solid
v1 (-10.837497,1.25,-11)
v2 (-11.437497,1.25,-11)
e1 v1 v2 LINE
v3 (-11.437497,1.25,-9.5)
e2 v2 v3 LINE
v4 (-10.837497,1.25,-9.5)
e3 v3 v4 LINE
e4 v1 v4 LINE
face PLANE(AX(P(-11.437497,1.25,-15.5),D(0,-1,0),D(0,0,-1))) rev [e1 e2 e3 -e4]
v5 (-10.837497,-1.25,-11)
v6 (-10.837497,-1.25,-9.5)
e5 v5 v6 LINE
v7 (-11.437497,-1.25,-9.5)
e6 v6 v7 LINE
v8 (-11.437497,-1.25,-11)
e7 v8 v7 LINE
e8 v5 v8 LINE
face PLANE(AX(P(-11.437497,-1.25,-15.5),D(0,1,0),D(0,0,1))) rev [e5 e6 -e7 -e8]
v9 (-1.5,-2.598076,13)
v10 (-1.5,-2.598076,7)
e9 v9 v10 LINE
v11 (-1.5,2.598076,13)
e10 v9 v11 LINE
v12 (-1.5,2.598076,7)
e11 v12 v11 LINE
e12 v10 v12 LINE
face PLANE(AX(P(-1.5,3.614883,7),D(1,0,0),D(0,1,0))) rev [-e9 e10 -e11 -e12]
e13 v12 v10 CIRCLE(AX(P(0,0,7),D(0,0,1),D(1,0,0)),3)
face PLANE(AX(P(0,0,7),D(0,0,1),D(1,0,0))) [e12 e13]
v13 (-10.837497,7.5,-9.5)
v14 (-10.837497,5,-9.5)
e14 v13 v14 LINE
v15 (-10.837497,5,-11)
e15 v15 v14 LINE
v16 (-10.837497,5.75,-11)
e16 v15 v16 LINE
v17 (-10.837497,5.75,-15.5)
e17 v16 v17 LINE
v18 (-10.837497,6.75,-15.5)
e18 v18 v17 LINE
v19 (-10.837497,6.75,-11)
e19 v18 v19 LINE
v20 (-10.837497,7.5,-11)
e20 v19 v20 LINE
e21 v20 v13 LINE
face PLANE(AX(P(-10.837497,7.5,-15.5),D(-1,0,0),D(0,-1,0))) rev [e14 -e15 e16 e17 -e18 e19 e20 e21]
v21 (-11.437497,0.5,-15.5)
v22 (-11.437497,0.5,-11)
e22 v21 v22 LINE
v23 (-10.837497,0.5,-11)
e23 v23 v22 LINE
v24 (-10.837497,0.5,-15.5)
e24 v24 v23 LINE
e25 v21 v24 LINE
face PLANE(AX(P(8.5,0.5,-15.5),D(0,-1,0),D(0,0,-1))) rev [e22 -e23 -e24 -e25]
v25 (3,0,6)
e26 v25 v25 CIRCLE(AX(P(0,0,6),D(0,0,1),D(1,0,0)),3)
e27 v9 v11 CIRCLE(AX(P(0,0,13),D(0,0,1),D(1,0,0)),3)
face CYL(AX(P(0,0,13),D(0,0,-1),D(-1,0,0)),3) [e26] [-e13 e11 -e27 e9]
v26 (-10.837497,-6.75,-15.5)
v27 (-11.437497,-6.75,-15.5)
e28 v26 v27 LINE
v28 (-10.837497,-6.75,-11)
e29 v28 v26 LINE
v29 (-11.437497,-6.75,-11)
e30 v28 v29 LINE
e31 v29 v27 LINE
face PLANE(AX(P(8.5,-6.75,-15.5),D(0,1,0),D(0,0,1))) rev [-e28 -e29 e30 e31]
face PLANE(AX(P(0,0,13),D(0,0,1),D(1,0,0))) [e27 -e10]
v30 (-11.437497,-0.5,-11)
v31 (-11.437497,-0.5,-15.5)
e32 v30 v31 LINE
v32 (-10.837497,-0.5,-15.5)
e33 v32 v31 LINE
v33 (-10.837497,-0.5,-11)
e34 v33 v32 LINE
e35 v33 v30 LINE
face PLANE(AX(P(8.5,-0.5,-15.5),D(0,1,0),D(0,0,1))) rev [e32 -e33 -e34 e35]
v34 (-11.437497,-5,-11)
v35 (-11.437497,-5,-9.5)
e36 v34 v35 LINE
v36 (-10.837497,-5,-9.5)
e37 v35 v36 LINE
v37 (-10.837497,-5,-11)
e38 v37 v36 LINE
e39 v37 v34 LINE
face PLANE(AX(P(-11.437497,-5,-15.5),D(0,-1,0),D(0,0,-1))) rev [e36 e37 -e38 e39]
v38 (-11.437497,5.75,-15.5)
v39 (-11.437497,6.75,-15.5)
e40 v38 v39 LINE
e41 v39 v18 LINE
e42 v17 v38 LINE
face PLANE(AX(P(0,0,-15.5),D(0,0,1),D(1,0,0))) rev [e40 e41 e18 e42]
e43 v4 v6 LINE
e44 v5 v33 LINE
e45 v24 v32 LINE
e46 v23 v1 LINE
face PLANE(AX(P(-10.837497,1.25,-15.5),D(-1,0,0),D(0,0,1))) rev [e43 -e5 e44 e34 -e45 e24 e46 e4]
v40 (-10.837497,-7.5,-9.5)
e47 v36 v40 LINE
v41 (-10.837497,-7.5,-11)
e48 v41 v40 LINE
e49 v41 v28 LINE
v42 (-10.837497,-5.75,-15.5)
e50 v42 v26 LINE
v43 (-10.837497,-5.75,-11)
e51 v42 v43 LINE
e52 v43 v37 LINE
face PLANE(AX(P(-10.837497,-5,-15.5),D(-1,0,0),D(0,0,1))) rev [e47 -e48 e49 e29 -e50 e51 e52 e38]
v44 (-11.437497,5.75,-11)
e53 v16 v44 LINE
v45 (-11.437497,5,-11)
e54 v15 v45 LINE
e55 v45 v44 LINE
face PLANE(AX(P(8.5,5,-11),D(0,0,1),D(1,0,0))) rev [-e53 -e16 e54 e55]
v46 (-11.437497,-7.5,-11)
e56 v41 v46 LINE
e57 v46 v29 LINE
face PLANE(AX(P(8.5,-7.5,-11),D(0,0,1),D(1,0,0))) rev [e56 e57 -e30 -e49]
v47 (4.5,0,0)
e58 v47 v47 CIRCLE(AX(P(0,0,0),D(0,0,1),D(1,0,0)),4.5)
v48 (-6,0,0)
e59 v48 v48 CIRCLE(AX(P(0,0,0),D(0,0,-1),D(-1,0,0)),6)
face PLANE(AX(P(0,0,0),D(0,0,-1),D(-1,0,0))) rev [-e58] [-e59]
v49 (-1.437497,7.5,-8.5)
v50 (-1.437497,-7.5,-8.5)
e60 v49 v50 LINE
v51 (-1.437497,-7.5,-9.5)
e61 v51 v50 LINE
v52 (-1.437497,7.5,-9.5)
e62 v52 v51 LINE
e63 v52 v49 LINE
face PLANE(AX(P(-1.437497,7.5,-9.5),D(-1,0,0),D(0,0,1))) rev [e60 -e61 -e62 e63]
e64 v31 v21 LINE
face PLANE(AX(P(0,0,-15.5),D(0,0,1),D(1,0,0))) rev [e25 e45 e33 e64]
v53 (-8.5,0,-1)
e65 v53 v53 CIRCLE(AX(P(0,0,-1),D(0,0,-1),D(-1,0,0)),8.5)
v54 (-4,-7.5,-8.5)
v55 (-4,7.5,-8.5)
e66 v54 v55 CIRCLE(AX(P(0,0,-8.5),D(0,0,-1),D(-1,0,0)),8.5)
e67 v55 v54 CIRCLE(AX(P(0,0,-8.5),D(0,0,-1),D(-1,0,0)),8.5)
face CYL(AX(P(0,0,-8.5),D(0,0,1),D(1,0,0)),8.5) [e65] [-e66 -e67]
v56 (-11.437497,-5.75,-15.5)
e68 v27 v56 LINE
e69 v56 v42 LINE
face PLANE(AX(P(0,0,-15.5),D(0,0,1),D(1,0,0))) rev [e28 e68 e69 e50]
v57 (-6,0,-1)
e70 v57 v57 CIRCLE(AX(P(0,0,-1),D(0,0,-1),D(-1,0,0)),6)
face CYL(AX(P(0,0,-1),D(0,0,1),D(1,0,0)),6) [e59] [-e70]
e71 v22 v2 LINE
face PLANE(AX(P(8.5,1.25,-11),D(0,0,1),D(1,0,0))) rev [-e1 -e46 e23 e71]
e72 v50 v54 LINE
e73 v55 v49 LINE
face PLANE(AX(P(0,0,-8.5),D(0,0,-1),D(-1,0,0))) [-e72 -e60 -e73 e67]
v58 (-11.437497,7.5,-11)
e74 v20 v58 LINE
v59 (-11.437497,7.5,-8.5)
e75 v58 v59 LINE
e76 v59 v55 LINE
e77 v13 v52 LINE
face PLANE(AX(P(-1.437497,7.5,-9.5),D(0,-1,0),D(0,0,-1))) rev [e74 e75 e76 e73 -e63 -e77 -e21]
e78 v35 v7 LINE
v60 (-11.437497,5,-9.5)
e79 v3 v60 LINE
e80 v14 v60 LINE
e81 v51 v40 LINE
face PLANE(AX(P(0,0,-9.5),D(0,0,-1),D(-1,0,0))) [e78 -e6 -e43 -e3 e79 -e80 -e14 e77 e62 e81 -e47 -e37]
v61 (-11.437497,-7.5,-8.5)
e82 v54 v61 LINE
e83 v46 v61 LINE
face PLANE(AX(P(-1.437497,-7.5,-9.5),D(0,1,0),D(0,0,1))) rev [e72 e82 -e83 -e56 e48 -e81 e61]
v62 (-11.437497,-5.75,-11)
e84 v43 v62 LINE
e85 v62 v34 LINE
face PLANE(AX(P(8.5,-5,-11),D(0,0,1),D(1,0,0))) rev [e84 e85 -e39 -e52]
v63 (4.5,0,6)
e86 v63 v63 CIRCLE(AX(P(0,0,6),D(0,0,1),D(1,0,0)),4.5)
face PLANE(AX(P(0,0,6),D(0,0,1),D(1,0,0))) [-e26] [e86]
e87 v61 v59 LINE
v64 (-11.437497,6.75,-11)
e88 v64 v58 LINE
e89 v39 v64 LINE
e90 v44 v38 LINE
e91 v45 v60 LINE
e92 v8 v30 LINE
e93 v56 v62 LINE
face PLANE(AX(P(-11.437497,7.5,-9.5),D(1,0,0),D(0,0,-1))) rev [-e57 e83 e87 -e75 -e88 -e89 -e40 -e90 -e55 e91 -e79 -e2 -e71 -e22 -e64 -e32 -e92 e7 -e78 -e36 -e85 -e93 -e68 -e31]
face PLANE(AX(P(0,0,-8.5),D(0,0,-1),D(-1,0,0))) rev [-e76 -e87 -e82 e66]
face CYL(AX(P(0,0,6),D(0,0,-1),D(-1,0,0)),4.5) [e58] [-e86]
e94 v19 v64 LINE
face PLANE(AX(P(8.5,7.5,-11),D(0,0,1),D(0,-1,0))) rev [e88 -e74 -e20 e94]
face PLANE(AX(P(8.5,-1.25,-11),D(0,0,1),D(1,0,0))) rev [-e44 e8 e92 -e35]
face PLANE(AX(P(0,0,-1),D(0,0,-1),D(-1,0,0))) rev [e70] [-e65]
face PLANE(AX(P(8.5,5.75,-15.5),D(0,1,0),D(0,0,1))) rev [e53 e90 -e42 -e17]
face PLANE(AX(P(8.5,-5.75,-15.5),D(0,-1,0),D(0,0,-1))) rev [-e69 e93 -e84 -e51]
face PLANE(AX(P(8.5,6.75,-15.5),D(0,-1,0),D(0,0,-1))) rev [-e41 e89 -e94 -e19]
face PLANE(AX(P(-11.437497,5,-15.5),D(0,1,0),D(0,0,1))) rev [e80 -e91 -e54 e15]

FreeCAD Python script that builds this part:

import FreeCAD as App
import Part
import Sketcher
Q = App.Units.Quantity


def add_polygon(sketch, points):
    """Adds a closed chain of lines whose ends are joined by coincident constraints."""
    first, n = sketch.GeometryCount, len(points)
    for a, b in zip(points, points[1:] + points[:1]):
        sketch.addGeometry(Part.LineSegment(App.Vector(*a, 0), App.Vector(*b, 0)), False)
    for i in range(n):
        sketch.addConstraint(Sketcher.Constraint("Coincident", first + i, 2, first + (i + 1) % n, 1))

doc = App.newDocument("Part")
params = doc.addObject("Spreadsheet::Sheet", "Params")
for row, (alias, value) in enumerate([
    ("sketch1_diameter", "9 mm"),
    ("pad1_length", "6 mm"),
    ("sketch2_diameter", "6 mm"),
    ("pad2_length", "7 mm"),
    ("pocket1_length", "6 mm"),
    ("sketch4_diameter", "12 mm"),
    ("pad3_length", "1 mm"),
    ("sketch5_diameter", "17 mm"),
    ("pad4_length", "7.5 mm"),
    ("sketch6_width", "10 mm"),
    ("sketch6_height", "15 mm"),
    ("pad5_length", "1 mm"),
    ("sketch7_width", "0.6 mm"),
    ("sketch7_height", "2.5 mm"),
    ("pad6_length", "6 mm"),
    ("sketch8_height", "4.5 mm"),
    ("sketch8_width", "0.75 mm"),
], start=1):
    params.set(f"A{row}", alias)
    params.set(f"B{row}", "=" + value)
    params.setAlias(f"B{row}", alias)

body = doc.addObject("PartDesign::Body", "Body")

# Sketch on XY plane
sketch1 = body.newObject("Sketcher::SketchObject", "Sketch")
sketch1.AttachmentSupport = (doc.getObject("XY_Plane"), [""])
sketch1.MapMode = "FlatFace"
sketch1.addGeometry(Part.Circle(App.Vector(0, 0, 0), App.Vector(0, 0, 1), 4.5), False)
sketch1.addConstraint([
    Sketcher.Constraint("Coincident", 0, 3, -1, 1),
    Sketcher.Constraint("Diameter", 0, Q("9 mm")),
])
sketch1.setExpression("Constraints[1]", "Params.sketch1_diameter")
pad1 = body.newObject("PartDesign::Pad", "Pad")
pad1.Profile = sketch1
pad1.setExpression("Length", "Params.pad1_length")

# Sketch on XY plane
sketch2 = body.newObject("Sketcher::SketchObject", "Sketch001")
sketch2.AttachmentSupport = (doc.getObject("XY_Plane"), [""])
sketch2.MapMode = "FlatFace"
sketch2.AttachmentOffset = App.Placement(App.Vector(0, 0, 6), App.Rotation())
sketch2.addGeometry(Part.Circle(App.Vector(0, 0, 0), App.Vector(0, 0, 1), 3), False)
sketch2.addConstraint([
    Sketcher.Constraint("Coincident", 0, 3, -1, 1),
    Sketcher.Constraint("Diameter", 0, Q("6 mm")),
])
sketch2.setExpression("Constraints[1]", "Params.sketch2_diameter")
pad2 = body.newObject("PartDesign::Pad", "Pad001")
pad2.Profile = sketch2
pad2.setExpression("Length", "Params.pad2_length")

# Sketch on XY plane
sketch3 = body.newObject("Sketcher::SketchObject", "Sketch002")
sketch3.AttachmentSupport = (doc.getObject("XY_Plane"), [""])
sketch3.MapMode = "FlatFace"
sketch3.AttachmentOffset = App.Placement(App.Vector(0, 0, 13), App.Rotation())
add_polygon(sketch3, [(-5.268316, 3.614883), (-5.268316, -2.902954), (-1.5, -2.902954), (-1.5, 3.614883)])  # lines 0-3
sketch3.addConstraint([
    Sketcher.Constraint("Vertical", 0),
    Sketcher.Constraint("Horizontal", 1),
    Sketcher.Constraint("Vertical", 2),
    Sketcher.Constraint("Horizontal", 3),
    Sketcher.Constraint("DistanceX", 1, 2, -1, 1, Q("1.5 mm")),
    Sketcher.Constraint("DistanceX", 1, 1, 1, 2, Q("3.768316 mm")),
    Sketcher.Constraint("DistanceY", 0, 2, 0, 1, Q("6.517837 mm")),
    Sketcher.Constraint("DistanceY", 0, 2, -1, 1, Q("2.902954 mm")),
])
pocket1 = body.newObject("PartDesign::Pocket", "Pocket")
pocket1.Profile = sketch3
pocket1.setExpression("Length", "Params.pocket1_length")

# Sketch on XY plane
sketch4 = body.newObject("Sketcher::SketchObject", "Sketch003")
sketch4.AttachmentSupport = (doc.getObject("XY_Plane"), [""])
sketch4.MapMode = "FlatFace"
sketch4.addGeometry(Part.Circle(App.Vector(0, 0, 0), App.Vector(0, 0, 1), 6), False)
sketch4.addConstraint([
    Sketcher.Constraint("Coincident", 0, 3, -1, 1),
    Sketcher.Constraint("Diameter", 0, Q("12 mm")),
])
sketch4.setExpression("Constraints[1]", "Params.sketch4_diameter")
pad3 = body.newObject("PartDesign::Pad", "Pad002")
pad3.Profile = sketch4
pad3.setExpression("Length", "Params.pad3_length")
pad3.Reversed = True

# Sketch on XY plane
sketch5 = body.newObject("Sketcher::SketchObject", "Sketch004")
sketch5.AttachmentSupport = (doc.getObject("XY_Plane"), [""])
sketch5.MapMode = "FlatFace"
sketch5.AttachmentOffset = App.Placement(App.Vector(0, 0, -1), App.Rotation())
sketch5.addGeometry(Part.Circle(App.Vector(0, 0, 0), App.Vector(0, 0, 1), 8.5), False)
sketch5.addConstraint([
    Sketcher.Constraint("Coincident", 0, 3, -1, 1),
    Sketcher.Constraint("Diameter", 0, Q("17 mm")),
])
sketch5.setExpression("Constraints[1]", "Params.sketch5_diameter")
pad4 = body.newObject("PartDesign::Pad", "Pad003")
pad4.Profile = sketch5
pad4.setExpression("Length", "Params.pad4_length")
pad4.Reversed = True

# Sketch on XY plane
sketch6 = body.newObject("Sketcher::SketchObject", "Sketch005")
sketch6.AttachmentSupport = (doc.getObject("XY_Plane"), [""])
sketch6.MapMode = "FlatFace"
sketch6.AttachmentOffset = App.Placement(App.Vector(0, 0, -8.5), App.Rotation())
add_polygon(sketch6, [(-1.437497, 7.5), (-1.437497, -7.5), (-11.437497, -7.5), (-11.437497, 7.5)])  # lines 0-3
sketch6.addConstraint([
    Sketcher.Constraint("Vertical", 0),
    Sketcher.Constraint("Horizontal", 1),
    Sketcher.Constraint("Vertical", 2),
    Sketcher.Constraint("Horizontal", 3),
    Sketcher.Constraint("DistanceX", 1, 2, 1, 1, Q("10 mm")),
    Sketcher.Constraint("DistanceY", 0, 2, 0, 1, Q("15 mm")),
    Sketcher.Constraint("DistanceY", 0, 2, -1, 1, Q("7.5 mm")),
    Sketcher.Constraint("DistanceX", 0, 2, -1, 1, Q("1.437497 mm")),
])
sketch6.setExpression("Constraints[8]", "Params.sketch6_width")
sketch6.setExpression("Constraints[9]", "Params.sketch6_height")
pad5 = body.newObject("PartDesign::Pad", "Pad004")
pad5.Profile = sketch6
pad5.setExpression("Length", "Params.pad5_length")
pad5.Reversed = True

# Sketch on XY plane
sketch7 = body.newObject("Sketcher::SketchObject", "Sketch006")
sketch7.AttachmentSupport = (doc.getObject("XY_Plane"), [""])
sketch7.MapMode = "FlatFace"
sketch7.AttachmentOffset = App.Placement(App.Vector(0, 0, -9.5), App.Rotation())
add_polygon(sketch7, [(-10.837497, 7.5), (-10.837497, 5), (-11.437497, 5), (-11.437497, 7.5)])  # lines 0-3
add_polygon(sketch7, [(-10.837497, 1.25), (-10.837497, -1.25), (-11.437497, -1.25), (-11.437497, 1.25)])  # lines 4-7
add_polygon(sketch7, [(-10.837497, -5), (-10.837497, -7.5), (-11.437497, -7.5), (-11.437497, -5)])  # lines 8-11
sketch7.addConstraint([
    Sketcher.Constraint("Vertical", 0),
    Sketcher.Constraint("Horizontal", 1),
    Sketcher.Constraint("Vertical", 2),
    Sketcher.Constraint("Horizontal", 3),
    Sketcher.Constraint("Vertical", 4),
    Sketcher.Constraint("Horizontal", 5),
    Sketcher.Constraint("Vertical", 6),
    Sketcher.Constraint("Horizontal", 7),
    Sketcher.Constraint("Vertical", 8),
    Sketcher.Constraint("Horizontal", 9),
    Sketcher.Constraint("Vertical", 10),
    Sketcher.Constraint("Horizontal", 11),
    Sketcher.Constraint("Symmetric", 3, 2, 8, 2, -1),
    Sketcher.Constraint("Symmetric", 1, 2, 10, 2, -1),
    Sketcher.Constraint("Vertical", 3, 2, 4, 2),
    Sketcher.Constraint("Vertical", 2, 2, 5, 2),
    Sketcher.Constraint("Equal", 2, 4),
    Sketcher.Constraint("DistanceX", 1, 2, 1, 1, Q("0.6 mm")),
    Sketcher.Constraint("DistanceY", 0, 2, 0, 1, Q("2.5 mm")),
    Sketcher.Constraint("DistanceY", -1, 1, 0, 2, Q("5 mm")),
    Sketcher.Constraint("DistanceY", 4, 2, -1, 1, Q("1.25 mm")),
    Sketcher.Constraint("DistanceX", 0, 2, -1, 1, Q("10.837497 mm")),
])
sketch7.setExpression("Constraints[29]", "Params.sketch7_width")
sketch7.setExpression("Constraints[30]", "Params.sketch7_height")
pad6 = body.newObject("PartDesign::Pad", "Pad005")
pad6.Profile = sketch7
pad6.setExpression("Length", "Params.pad6_length")
pad6.Reversed = True

# Sketch on YZ plane
sketch8 = body.newObject("Sketcher::SketchObject", "Sketch007")
sketch8.AttachmentSupport = (doc.getObject("YZ_Plane"), [""])
sketch8.MapMode = "FlatFace"
sketch8.AttachmentOffset = App.Placement(App.Vector(0, 0, -11.437497), App.Rotation())
add_polygon(sketch8, [(7.5, -15.5), (6.75, -15.5), (6.75, -11), (7.5, -11)])  # lines 0-3
add_polygon(sketch8, [(5.75, -15.5), (5, -15.5), (5, -11), (5.75, -11)])  # lines 4-7
add_polygon(sketch8, [(1.25, -15.5), (0.5, -15.5), (0.5, -11), (1.25, -11)])  # lines 8-11
add_polygon(sketch8, [(-0.5, -15.5), (-1.25, -15.5), (-1.25, -11), (-0.5, -11)])  # lines 12-15
add_polygon(sketch8, [(-5, -15.5), (-5.75, -15.5), (-5.75, -11), (-5, -11)])  # lines 16-19
add_polygon(sketch8, [(-6.75, -15.5), (-7.5, -15.5), (-7.5, -11), (-6.75, -11)])  # lines 20-23
sketch8.addConstraint([
    Sketcher.Constraint("Horizontal", 0),
    Sketcher.Constraint("Vertical", 1),
    Sketcher.Constraint("Horizontal", 2),
    Sketcher.Constraint("Vertical", 3),
    Sketcher.Constraint("Horizontal", 4),
    Sketcher.Constraint("Vertical", 5),
    Sketcher.Constraint("Horizontal", 6),
    Sketcher.Constraint("Vertical", 7),
    Sketcher.Constraint("Horizontal", 8),
    Sketcher.Constraint("Vertical", 9),
    Sketcher.Constraint("Horizontal", 10),
    Sketcher.Constraint("Vertical", 11),
    Sketcher.Constraint("Horizontal", 12),
    Sketcher.Constraint("Vertical", 13),
    Sketcher.Constraint("Horizontal", 14),
    Sketcher.Constraint("Vertical", 15),
    Sketcher.Constraint("Horizontal", 16),
    Sketcher.Constraint("Vertical", 17),
    Sketcher.Constraint("Horizontal", 18),
    Sketcher.Constraint("Vertical", 19),
    Sketcher.Constraint("Horizontal", 20),
    Sketcher.Constraint("Vertical", 21),
    Sketcher.Constraint("Horizontal", 22),
    Sketcher.Constraint("Vertical", 23),
    Sketcher.Constraint("Symmetric", 11, 2, 12, 2, -2),
    Sketcher.Constraint("Symmetric", 9, 2, 14, 2, -2),
    Sketcher.Constraint("Symmetric", 7, 2, 16, 2, -2),
    Sketcher.Constraint("Symmetric", 5, 2, 18, 2, -2),
    Sketcher.Constraint("Symmetric", 3, 2, 20, 2, -2),
    Sketcher.Constraint("Symmetric", 1, 2, 22, 2, -2),
    Sketcher.Constraint("Horizontal", 3, 2, 4, 2),
    Sketcher.Constraint("Horizontal", 2, 2, 5, 2),
    Sketcher.Constraint("Horizontal", 7, 2, 8, 2),
    Sketcher.Constraint("Horizontal", 6, 2, 9, 2),
    Sketcher.Constraint("Equal", 2, 4),
    Sketcher.Constraint("Equal", 6, 8),
    Sketcher.Constraint("DistanceY", 1, 1, 1, 2, Q("4.5 mm")),
    Sketcher.Constraint("DistanceY", 1, 2, -1, 1, Q("11 mm")),
    Sketcher.Constraint("DistanceX", -1, 1, 4, 2, Q("5 mm")),
    Sketcher.Constraint("DistanceX", 6, 2, 1, 2, Q("1 mm")),
    Sketcher.Constraint("DistanceX", 14, 2, 9, 2, Q("1 mm")),
    Sketcher.Constraint("DistanceX", 0, 2, 0, 1, Q("0.75 mm")),
])
sketch8.setExpression("Constraints[60]", "Params.sketch8_height")
sketch8.setExpression("Constraints[65]", "Params.sketch8_width")
pocket2 = body.newObject("PartDesign::Pocket", "Pocket001")
pocket2.Profile = sketch8
pocket2.Type = "ThroughAll"
pocket2.Reversed = True

doc.recompute()
